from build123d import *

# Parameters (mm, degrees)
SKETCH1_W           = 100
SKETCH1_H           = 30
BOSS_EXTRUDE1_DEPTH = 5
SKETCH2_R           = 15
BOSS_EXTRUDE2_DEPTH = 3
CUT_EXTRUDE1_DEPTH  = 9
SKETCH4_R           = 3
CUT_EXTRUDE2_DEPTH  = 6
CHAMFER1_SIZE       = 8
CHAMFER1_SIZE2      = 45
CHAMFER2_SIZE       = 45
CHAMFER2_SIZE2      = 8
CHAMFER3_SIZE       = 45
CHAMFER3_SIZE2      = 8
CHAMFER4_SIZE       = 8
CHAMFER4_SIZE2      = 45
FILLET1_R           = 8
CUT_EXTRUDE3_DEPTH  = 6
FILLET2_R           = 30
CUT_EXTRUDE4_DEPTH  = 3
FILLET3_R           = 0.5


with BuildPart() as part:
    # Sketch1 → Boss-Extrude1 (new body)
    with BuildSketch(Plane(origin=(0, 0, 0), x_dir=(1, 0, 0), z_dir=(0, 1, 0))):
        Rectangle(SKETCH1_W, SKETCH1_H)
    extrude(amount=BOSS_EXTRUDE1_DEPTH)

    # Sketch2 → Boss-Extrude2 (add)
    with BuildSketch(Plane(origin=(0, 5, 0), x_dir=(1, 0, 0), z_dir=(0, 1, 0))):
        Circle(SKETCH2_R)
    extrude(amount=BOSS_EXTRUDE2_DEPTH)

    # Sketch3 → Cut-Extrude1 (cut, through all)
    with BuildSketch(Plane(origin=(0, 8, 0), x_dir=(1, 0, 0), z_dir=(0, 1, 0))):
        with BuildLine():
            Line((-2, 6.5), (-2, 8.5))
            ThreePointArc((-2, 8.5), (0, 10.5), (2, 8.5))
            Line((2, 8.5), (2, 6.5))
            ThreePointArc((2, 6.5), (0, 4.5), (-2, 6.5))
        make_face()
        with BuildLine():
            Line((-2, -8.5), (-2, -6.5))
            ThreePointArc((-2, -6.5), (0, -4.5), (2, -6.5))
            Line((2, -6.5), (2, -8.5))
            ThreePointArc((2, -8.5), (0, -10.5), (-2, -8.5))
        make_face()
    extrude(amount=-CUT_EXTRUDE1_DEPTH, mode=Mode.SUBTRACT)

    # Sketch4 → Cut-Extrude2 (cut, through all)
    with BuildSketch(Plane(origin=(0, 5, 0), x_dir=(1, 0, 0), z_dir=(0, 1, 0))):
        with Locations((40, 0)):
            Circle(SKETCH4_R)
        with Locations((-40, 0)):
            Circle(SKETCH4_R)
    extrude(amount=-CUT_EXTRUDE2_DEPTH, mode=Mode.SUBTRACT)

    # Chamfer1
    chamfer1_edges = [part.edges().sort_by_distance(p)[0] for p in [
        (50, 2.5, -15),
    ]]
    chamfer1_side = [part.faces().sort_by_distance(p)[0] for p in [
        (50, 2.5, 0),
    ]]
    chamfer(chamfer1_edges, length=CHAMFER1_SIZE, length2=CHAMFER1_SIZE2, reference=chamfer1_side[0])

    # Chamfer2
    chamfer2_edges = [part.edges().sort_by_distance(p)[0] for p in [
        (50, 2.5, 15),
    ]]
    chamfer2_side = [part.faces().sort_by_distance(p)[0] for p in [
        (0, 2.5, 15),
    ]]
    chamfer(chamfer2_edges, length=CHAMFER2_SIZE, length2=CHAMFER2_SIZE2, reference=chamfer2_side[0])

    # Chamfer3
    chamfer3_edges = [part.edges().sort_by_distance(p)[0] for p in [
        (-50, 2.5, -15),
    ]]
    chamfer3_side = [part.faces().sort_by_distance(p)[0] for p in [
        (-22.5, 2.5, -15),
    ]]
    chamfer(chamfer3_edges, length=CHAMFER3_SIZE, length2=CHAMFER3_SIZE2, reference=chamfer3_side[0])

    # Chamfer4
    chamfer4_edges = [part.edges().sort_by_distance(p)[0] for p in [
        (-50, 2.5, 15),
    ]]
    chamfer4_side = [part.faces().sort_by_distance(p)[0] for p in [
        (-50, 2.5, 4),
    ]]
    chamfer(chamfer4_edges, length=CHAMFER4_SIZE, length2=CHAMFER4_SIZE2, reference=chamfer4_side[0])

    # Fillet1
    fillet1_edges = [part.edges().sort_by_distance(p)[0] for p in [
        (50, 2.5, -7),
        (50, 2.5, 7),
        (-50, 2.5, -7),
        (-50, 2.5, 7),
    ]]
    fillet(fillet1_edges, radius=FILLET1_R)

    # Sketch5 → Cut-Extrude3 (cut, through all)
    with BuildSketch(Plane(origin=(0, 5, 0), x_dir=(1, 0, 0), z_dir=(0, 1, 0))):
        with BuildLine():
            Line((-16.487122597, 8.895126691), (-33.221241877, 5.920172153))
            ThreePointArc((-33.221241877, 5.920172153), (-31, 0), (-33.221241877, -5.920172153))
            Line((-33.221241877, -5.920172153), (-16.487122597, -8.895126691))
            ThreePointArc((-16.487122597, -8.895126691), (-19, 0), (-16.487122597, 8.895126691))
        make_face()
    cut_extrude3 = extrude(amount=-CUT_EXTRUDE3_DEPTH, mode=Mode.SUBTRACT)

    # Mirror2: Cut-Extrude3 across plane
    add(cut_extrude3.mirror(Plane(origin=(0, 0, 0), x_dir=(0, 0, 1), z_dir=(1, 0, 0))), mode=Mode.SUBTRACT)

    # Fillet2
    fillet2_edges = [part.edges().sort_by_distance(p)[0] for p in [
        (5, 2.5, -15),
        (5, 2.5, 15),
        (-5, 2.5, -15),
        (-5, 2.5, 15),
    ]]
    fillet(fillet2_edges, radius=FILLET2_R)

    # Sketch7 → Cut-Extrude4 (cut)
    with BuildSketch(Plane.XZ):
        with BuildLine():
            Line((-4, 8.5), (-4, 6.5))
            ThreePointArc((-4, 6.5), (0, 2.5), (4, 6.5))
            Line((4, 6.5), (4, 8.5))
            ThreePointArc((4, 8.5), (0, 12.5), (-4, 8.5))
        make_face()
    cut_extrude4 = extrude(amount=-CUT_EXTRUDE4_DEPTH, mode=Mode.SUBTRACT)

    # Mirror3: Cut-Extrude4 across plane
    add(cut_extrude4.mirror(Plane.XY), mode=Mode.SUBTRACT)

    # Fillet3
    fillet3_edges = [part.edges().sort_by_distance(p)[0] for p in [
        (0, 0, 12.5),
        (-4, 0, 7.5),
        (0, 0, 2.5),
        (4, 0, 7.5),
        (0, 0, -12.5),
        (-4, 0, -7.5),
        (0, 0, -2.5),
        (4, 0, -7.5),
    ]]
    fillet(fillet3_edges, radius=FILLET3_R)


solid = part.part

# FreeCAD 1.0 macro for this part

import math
import FreeCAD as App
import Part
import Sketcher

V = App.Vector
Q = App.Units.Quantity


def edges_at(feature, points):
    """Names of the edges that pass closest to the given points."""
    edges = feature.Shape.Edges
    near = lambda p: min(range(len(edges)), key=lambda i: edges[i].distToShape(Part.Vertex(*p))[0])
    return sorted({f"Edge{near(p) + 1}" for p in points})


def add_polygon(sketch, points):
    """Adds a closed chain of lines whose ends are joined by coincident constraints."""
    first, n = sketch.GeometryCount, len(points)
    for a, b in zip(points, points[1:] + points[:1]):
        sketch.addGeometry(Part.LineSegment(App.Vector(*a, 0), App.Vector(*b, 0)), False)
    for i in range(n):
        sketch.addConstraint(Sketcher.Constraint("Coincident", first + i, 2, first + (i + 1) % n, 1))

doc = App.newDocument("Part")
params = doc.addObject("Spreadsheet::Sheet", "Params")
for row, (alias, value) in enumerate([
    ("sketch1_width", "100 mm"),
    ("sketch1_height", "30 mm"),
    ("pad1_length", "5 mm"),
    ("sketch2_diameter", "30 mm"),
    ("pad2_length", "3 mm"),
    ("sketch3_radius", "2 mm"),
    ("sketch3_height", "2 mm"),
    ("sketch4_diameter", "6 mm"),
    ("chamfer_size", "8 mm"),
    ("chamfer_size2", "45 mm"),
    ("chamfer2_size", "45 mm"),
    ("chamfer2_size2", "8 mm"),
    ("chamfer3_size", "45 mm"),
    ("chamfer3_size2", "8 mm"),
    ("chamfer4_size", "8 mm"),
    ("chamfer4_size2", "45 mm"),
    ("fillet_radius", "8 mm"),
    ("sketch5_radius", "9 mm"),
    ("sketch5_radius2", "17 mm"),
    ("fillet2_radius", "30 mm"),
    ("sketch6_radius", "4 mm"),
    ("sketch6_height", "2 mm"),
    ("pocket4_length", "3 mm"),
    ("fillet3_radius", "0.5 mm"),
], start=1):
    params.set(f"A{row}", alias)
    params.set(f"B{row}", "=" + value)
    params.setAlias(f"B{row}", alias)

body = doc.addObject("PartDesign::Body", "Body")

# Sketch on XZ plane
sketch1 = doc.addObject("Sketcher::SketchObject", "Sketch")
body.addObject(sketch1)
sketch1.AttachmentSupport = (doc.XZ_Plane, [""])
sketch1.MapMode = "FlatFace"
add_polygon(sketch1, [(-50, -15), (-50, 15), (50, 15), (50, -15)])  # lines 0-3
sketch1.addConstraint(Sketcher.Constraint("Vertical", 0))
sketch1.addConstraint(Sketcher.Constraint("Horizontal", 1))
sketch1.addConstraint(Sketcher.Constraint("Vertical", 2))
sketch1.addConstraint(Sketcher.Constraint("Horizontal", 3))
sketch1.addConstraint(Sketcher.Constraint("Symmetric", 0, 2, 2, 2, -1, 1))
sketch1.addConstraint(Sketcher.Constraint("DistanceX", 1, 1, 1, 2, Q("100 mm")))
sketch1.addConstraint(Sketcher.Constraint("DistanceY", 0, 1, 0, 2, Q("30 mm")))
sketch1.setExpression("Constraints[9]", "Params.sketch1_width")
sketch1.setExpression("Constraints[10]", "Params.sketch1_height")
pad1 = doc.addObject("PartDesign::Pad", "Pad")
body.addObject(pad1)
pad1.Profile = sketch1
pad1.setExpression("Length", "Params.pad1_length")
pad1.Reversed = True

# Sketch on XZ plane
sketch2 = doc.addObject("Sketcher::SketchObject", "Sketch001")
body.addObject(sketch2)
sketch2.AttachmentSupport = (doc.XZ_Plane, [""])
sketch2.MapMode = "FlatFace"
sketch2.AttachmentOffset = App.Placement(V(0, 0, -5), App.Rotation())
sketch2.addGeometry(Part.Circle(V(0, 0, 0), V(0, 0, 1), 15), False)
sketch2.addConstraint(Sketcher.Constraint("Coincident", 0, 3, -1, 1))
sketch2.addConstraint(Sketcher.Constraint("Diameter", 0, Q("30 mm")))
sketch2.setExpression("Constraints[1]", "Params.sketch2_diameter")
pad2 = doc.addObject("PartDesign::Pad", "Pad001")
body.addObject(pad2)
pad2.Profile = sketch2
pad2.setExpression("Length", "Params.pad2_length")
pad2.Reversed = True

# Sketch on XZ plane
sketch3 = doc.addObject("Sketcher::SketchObject", "Sketch002")
body.addObject(sketch3)
sketch3.AttachmentSupport = (doc.XZ_Plane, [""])
sketch3.MapMode = "FlatFace"
sketch3.AttachmentOffset = App.Placement(V(0, 0, -8), App.Rotation())
sketch3.addGeometry(Part.LineSegment(V(-2, -8.5, 0), V(-2, -6.5, 0)), False)
sketch3.addGeometry(Part.ArcOfCircle(Part.Circle(V(0, -6.5, 0), V(0, 0, 1), 2), math.radians(0), math.radians(180)), False)
sketch3.addGeometry(Part.LineSegment(V(2, -6.5, 0), V(2, -8.5, 0)), False)
sketch3.addGeometry(Part.ArcOfCircle(Part.Circle(V(0, -8.5, 0), V(0, 0, 1), 2), math.radians(180), math.radians(360)), False)
sketch3.addGeometry(Part.LineSegment(V(-2, 6.5, 0), V(-2, 8.5, 0)), False)
sketch3.addGeometry(Part.ArcOfCircle(Part.Circle(V(0, 8.5, 0), V(0, 0, 1), 2), math.radians(0), math.radians(180)), False)
sketch3.addGeometry(Part.LineSegment(V(2, 8.5, 0), V(2, 6.5, 0)), False)
sketch3.addGeometry(Part.ArcOfCircle(Part.Circle(V(0, 6.5, 0), V(0, 0, 1), 2), math.radians(180), math.radians(360)), False)
sketch3.addConstraint(Sketcher.Constraint("Tangent", 0, 2, 1, 2))
sketch3.addConstraint(Sketcher.Constraint("Tangent", 1, 1, 2, 1))
sketch3.addConstraint(Sketcher.Constraint("Tangent", 2, 2, 3, 2))
sketch3.addConstraint(Sketcher.Constraint("Tangent", 3, 1, 0, 1))
sketch3.addConstraint(Sketcher.Constraint("Tangent", 4, 2, 5, 2))
sketch3.addConstraint(Sketcher.Constraint("Tangent", 5, 1, 6, 1))
sketch3.addConstraint(Sketcher.Constraint("Tangent", 6, 2, 7, 2))
sketch3.addConstraint(Sketcher.Constraint("Tangent", 7, 1, 4, 1))
sketch3.addConstraint(Sketcher.Constraint("Vertical", 0))
sketch3.addConstraint(Sketcher.Constraint("Vertical", 2))
sketch3.addConstraint(Sketcher.Constraint("Vertical", 4))
sketch3.addConstraint(Sketcher.Constraint("Vertical", 6))
sketch3.addConstraint(Sketcher.Constraint("Equal", 3, 5))
sketch3.addConstraint(Sketcher.Constraint("Symmetric", 3, 3, 5, 3, -1, 1))
sketch3.addConstraint(Sketcher.Constraint("Symmetric", 1, 3, 7, 3, -1))
sketch3.addConstraint(Sketcher.Constraint("Radius", 1, Q("2 mm")))
sketch3.addConstraint(Sketcher.Constraint("DistanceY", 0, 1, 0, 2, Q("2 mm")))
sketch3.addConstraint(Sketcher.Constraint("DistanceY", 1, 3, 5, 3, Q("15 mm")))
sketch3.setExpression("Constraints[15]", "Params.sketch3_radius")
sketch3.setExpression("Constraints[16]", "Params.sketch3_height")
pocket1 = doc.addObject("PartDesign::Pocket", "Pocket")
body.addObject(pocket1)
pocket1.Profile = sketch3
pocket1.Type = "ThroughAll"
pocket1.Reversed = True

# Sketch on XZ plane
sketch4 = doc.addObject("Sketcher::SketchObject", "Sketch003")
body.addObject(sketch4)
sketch4.AttachmentSupport = (doc.XZ_Plane, [""])
sketch4.MapMode = "FlatFace"
sketch4.AttachmentOffset = App.Placement(V(0, 0, -5), App.Rotation())
sketch4.addGeometry(Part.Circle(V(40, 0, 0), V(0, 0, 1), 3), False)
sketch4.addGeometry(Part.Circle(V(-40, 0, 0), V(0, 0, 1), 3), False)
sketch4.addConstraint(Sketcher.Constraint("Equal", 0, 1))
sketch4.addConstraint(Sketcher.Constraint("Symmetric", 0, 3, 1, 3, -1, 1))
sketch4.addConstraint(Sketcher.Constraint("PointOnObject", 0, 3, -1))
sketch4.addConstraint(Sketcher.Constraint("Diameter", 0, Q("6 mm")))
sketch4.addConstraint(Sketcher.Constraint("DistanceX", -1, 1, 0, 3, Q("40 mm")))
sketch4.setExpression("Constraints[3]", "Params.sketch4_diameter")
pocket2 = doc.addObject("PartDesign::Pocket", "Pocket001")
body.addObject(pocket2)
pocket2.Profile = sketch4
pocket2.Type = "ThroughAll"
pocket2.Reversed = True
doc.recompute()

chamfer = doc.addObject("PartDesign::Chamfer", "Chamfer")
body.addObject(chamfer)
chamfer.Base = (pocket2, edges_at(pocket2, [(50, 2.5, -15)]))
chamfer.ChamferType = "Two distances"
chamfer.setExpression("Size", "Params.chamfer_size")
chamfer.setExpression("Size2", "Params.chamfer_size2")
chamfer.FlipDirection = True
doc.recompute()

chamfer2 = doc.addObject("PartDesign::Chamfer", "Chamfer001")
body.addObject(chamfer2)
chamfer2.Base = (chamfer, edges_at(chamfer, [(50, 2.5, 15)]))
chamfer2.ChamferType = "Two distances"
chamfer2.setExpression("Size", "Params.chamfer2_size")
chamfer2.setExpression("Size2", "Params.chamfer2_size2")
chamfer2.FlipDirection = True
doc.recompute()

chamfer3 = doc.addObject("PartDesign::Chamfer", "Chamfer002")
body.addObject(chamfer3)
chamfer3.Base = (chamfer2, edges_at(chamfer2, [(-50, 2.5, -15)]))
chamfer3.ChamferType = "Two distances"
chamfer3.setExpression("Size", "Params.chamfer3_size")
chamfer3.setExpression("Size2", "Params.chamfer3_size2")
doc.recompute()

chamfer4 = doc.addObject("PartDesign::Chamfer", "Chamfer003")
body.addObject(chamfer4)
chamfer4.Base = (chamfer3, edges_at(chamfer3, [(-50, 2.5, 15)]))
chamfer4.ChamferType = "Two distances"
chamfer4.setExpression("Size", "Params.chamfer4_size")
chamfer4.setExpression("Size2", "Params.chamfer4_size2")
doc.recompute()

fillet = doc.addObject("PartDesign::Fillet", "Fillet")
body.addObject(fillet)
fillet.Base = (chamfer4, edges_at(chamfer4, [
    (50, 2.5, -7),
    (50, 2.5, 7),
    (-50, 2.5, -7),
    (-50, 2.5, 7),
]))
fillet.setExpression("Radius", "Params.fillet_radius")

# Sketch on XZ plane
sketch5 = doc.addObject("Sketcher::SketchObject", "Sketch004")
body.addObject(sketch5)
sketch5.AttachmentSupport = (doc.XZ_Plane, [""])
sketch5.MapMode = "FlatFace"
sketch5.AttachmentOffset = App.Placement(V(0, 0, -5), App.Rotation())
sketch5.addGeometry(Part.LineSegment(V(-16.487123, -8.895127, 0), V(-33.221242, -5.920172, 0)), False)
sketch5.addGeometry(Part.ArcOfCircle(Part.Circle(V(-40, 0, 0), V(0, 0, 1), 9), math.radians(-41.132068), math.radians(41.132068)), False)
sketch5.addGeometry(Part.LineSegment(V(-33.221242, 5.920172, 0), V(-16.487123, 8.895127, 0)), False)
sketch5.addGeometry(Part.ArcOfCircle(Part.Circle(V(-2, 0, 0), V(0, 0, 1), 17), math.radians(148.449979), math.radians(211.550021)), False)
sketch5.addConstraint(Sketcher.Constraint("Coincident", 0, 2, 1, 1))
sketch5.addConstraint(Sketcher.Constraint("Coincident", 1, 2, 2, 1))
sketch5.addConstraint(Sketcher.Constraint("Coincident", 2, 2, 3, 1))
sketch5.addConstraint(Sketcher.Constraint("Coincident", 3, 2, 0, 1))
sketch5.addConstraint(Sketcher.Constraint("Symmetric", 0, 2, 1, 2, -1))
sketch5.addConstraint(Sketcher.Constraint("Symmetric", 2, 2, 3, 2, -1))
sketch5.addConstraint(Sketcher.Constraint("Radius", 1, Q("9 mm")))
sketch5.addConstraint(Sketcher.Constraint("Radius", 3, Q("17 mm")))
sketch5.addConstraint(Sketcher.Constraint("DistanceX", 1, 3, -1, 1, Q("40 mm")))
sketch5.addConstraint(Sketcher.Constraint("DistanceX", 3, 3, -1, 1, Q("2 mm")))
sketch5.addConstraint(Sketcher.Constraint("DistanceY", 0, 2, 2, 2, Q("14.815299 mm")))
sketch5.addConstraint(Sketcher.Constraint("DistanceX", 0, 2, -1, 1, Q("33.221242 mm")))
sketch5.setExpression("Constraints[6]", "Params.sketch5_radius")
sketch5.setExpression("Constraints[7]", "Params.sketch5_radius2")
pocket3 = doc.addObject("PartDesign::Pocket", "Pocket002")
body.addObject(pocket3)
pocket3.Profile = sketch5
pocket3.Type = "ThroughAll"
pocket3.Reversed = True
doc.recompute()

mirrored = doc.addObject("PartDesign::Mirrored", "Mirrored")
body.addObject(mirrored)
mirrored.Originals = [pocket3]
mirrored.MirrorPlane = (doc.YZ_Plane, [""])
body.Tip = mirrored
doc.recompute()

fillet2 = doc.addObject("PartDesign::Fillet", "Fillet001")
body.addObject(fillet2)
fillet2.Base = (mirrored, edges_at(mirrored, [
    (5, 2.5, -15),
    (5, 2.5, 15),
    (-5, 2.5, -15),
    (-5, 2.5, 15),
]))
fillet2.setExpression("Radius", "Params.fillet2_radius")

# Sketch on XZ plane
sketch6 = doc.addObject("Sketcher::SketchObject", "Sketch005")
body.addObject(sketch6)
sketch6.AttachmentSupport = (doc.XZ_Plane, [""])
sketch6.MapMode = "FlatFace"
sketch6.addGeometry(Part.LineSegment(V(-4, 8.5, 0), V(-4, 6.5, 0)), False)
sketch6.addGeometry(Part.ArcOfCircle(Part.Circle(V(0, 6.5, 0), V(0, 0, 1), 4), math.radians(180), math.radians(360)), False)
sketch6.addGeometry(Part.LineSegment(V(4, 6.5, 0), V(4, 8.5, 0)), False)
sketch6.addGeometry(Part.ArcOfCircle(Part.Circle(V(0, 8.5, 0), V(0, 0, 1), 4), math.radians(0), math.radians(180)), False)
sketch6.addConstraint(Sketcher.Constraint("Tangent", 0, 2, 1, 1))
sketch6.addConstraint(Sketcher.Constraint("Tangent", 1, 2, 2, 1))
sketch6.addConstraint(Sketcher.Constraint("Tangent", 2, 2, 3, 1))
sketch6.addConstraint(Sketcher.Constraint("Tangent", 3, 2, 0, 1))
sketch6.addConstraint(Sketcher.Constraint("Vertical", 0))
sketch6.addConstraint(Sketcher.Constraint("Vertical", 2))
sketch6.addConstraint(Sketcher.Constraint("PointOnObject", 1, 3, -2))
sketch6.addConstraint(Sketcher.Constraint("Radius", 1, Q("4 mm")))
sketch6.addConstraint(Sketcher.Constraint("DistanceY", 0, 2, 0, 1, Q("2 mm")))
sketch6.addConstraint(Sketcher.Constraint("DistanceY", -1, 1, 1, 3, Q("6.5 mm")))
sketch6.setExpression("Constraints[7]", "Params.sketch6_radius")
sketch6.setExpression("Constraints[8]", "Params.sketch6_height")
pocket4 = doc.addObject("PartDesign::Pocket", "Pocket003")
body.addObject(pocket4)
pocket4.Profile = sketch6
pocket4.setExpression("Length", "Params.pocket4_length")
doc.recompute()

mirrored2 = doc.addObject("PartDesign::Mirrored", "Mirrored001")
body.addObject(mirrored2)
mirrored2.Originals = [pocket4]
mirrored2.MirrorPlane = (doc.XY_Plane, [""])
body.Tip = mirrored2
doc.recompute()

fillet3 = doc.addObject("PartDesign::Fillet", "Fillet002")
body.addObject(fillet3)
fillet3.Base = (mirrored2, edges_at(mirrored2, [
    (0, 0, 12.5),
    (-4, 0, 7.5),
    (0, 0, 2.5),
    (4, 0, 7.5),
    (0, 0, -12.5),
    (-4, 0, -7.5),
    (0, 0, -2.5),
    (4, 0, -7.5),
]))
fillet3.setExpression("Radius", "Params.fillet3_radius")

doc.recompute()
